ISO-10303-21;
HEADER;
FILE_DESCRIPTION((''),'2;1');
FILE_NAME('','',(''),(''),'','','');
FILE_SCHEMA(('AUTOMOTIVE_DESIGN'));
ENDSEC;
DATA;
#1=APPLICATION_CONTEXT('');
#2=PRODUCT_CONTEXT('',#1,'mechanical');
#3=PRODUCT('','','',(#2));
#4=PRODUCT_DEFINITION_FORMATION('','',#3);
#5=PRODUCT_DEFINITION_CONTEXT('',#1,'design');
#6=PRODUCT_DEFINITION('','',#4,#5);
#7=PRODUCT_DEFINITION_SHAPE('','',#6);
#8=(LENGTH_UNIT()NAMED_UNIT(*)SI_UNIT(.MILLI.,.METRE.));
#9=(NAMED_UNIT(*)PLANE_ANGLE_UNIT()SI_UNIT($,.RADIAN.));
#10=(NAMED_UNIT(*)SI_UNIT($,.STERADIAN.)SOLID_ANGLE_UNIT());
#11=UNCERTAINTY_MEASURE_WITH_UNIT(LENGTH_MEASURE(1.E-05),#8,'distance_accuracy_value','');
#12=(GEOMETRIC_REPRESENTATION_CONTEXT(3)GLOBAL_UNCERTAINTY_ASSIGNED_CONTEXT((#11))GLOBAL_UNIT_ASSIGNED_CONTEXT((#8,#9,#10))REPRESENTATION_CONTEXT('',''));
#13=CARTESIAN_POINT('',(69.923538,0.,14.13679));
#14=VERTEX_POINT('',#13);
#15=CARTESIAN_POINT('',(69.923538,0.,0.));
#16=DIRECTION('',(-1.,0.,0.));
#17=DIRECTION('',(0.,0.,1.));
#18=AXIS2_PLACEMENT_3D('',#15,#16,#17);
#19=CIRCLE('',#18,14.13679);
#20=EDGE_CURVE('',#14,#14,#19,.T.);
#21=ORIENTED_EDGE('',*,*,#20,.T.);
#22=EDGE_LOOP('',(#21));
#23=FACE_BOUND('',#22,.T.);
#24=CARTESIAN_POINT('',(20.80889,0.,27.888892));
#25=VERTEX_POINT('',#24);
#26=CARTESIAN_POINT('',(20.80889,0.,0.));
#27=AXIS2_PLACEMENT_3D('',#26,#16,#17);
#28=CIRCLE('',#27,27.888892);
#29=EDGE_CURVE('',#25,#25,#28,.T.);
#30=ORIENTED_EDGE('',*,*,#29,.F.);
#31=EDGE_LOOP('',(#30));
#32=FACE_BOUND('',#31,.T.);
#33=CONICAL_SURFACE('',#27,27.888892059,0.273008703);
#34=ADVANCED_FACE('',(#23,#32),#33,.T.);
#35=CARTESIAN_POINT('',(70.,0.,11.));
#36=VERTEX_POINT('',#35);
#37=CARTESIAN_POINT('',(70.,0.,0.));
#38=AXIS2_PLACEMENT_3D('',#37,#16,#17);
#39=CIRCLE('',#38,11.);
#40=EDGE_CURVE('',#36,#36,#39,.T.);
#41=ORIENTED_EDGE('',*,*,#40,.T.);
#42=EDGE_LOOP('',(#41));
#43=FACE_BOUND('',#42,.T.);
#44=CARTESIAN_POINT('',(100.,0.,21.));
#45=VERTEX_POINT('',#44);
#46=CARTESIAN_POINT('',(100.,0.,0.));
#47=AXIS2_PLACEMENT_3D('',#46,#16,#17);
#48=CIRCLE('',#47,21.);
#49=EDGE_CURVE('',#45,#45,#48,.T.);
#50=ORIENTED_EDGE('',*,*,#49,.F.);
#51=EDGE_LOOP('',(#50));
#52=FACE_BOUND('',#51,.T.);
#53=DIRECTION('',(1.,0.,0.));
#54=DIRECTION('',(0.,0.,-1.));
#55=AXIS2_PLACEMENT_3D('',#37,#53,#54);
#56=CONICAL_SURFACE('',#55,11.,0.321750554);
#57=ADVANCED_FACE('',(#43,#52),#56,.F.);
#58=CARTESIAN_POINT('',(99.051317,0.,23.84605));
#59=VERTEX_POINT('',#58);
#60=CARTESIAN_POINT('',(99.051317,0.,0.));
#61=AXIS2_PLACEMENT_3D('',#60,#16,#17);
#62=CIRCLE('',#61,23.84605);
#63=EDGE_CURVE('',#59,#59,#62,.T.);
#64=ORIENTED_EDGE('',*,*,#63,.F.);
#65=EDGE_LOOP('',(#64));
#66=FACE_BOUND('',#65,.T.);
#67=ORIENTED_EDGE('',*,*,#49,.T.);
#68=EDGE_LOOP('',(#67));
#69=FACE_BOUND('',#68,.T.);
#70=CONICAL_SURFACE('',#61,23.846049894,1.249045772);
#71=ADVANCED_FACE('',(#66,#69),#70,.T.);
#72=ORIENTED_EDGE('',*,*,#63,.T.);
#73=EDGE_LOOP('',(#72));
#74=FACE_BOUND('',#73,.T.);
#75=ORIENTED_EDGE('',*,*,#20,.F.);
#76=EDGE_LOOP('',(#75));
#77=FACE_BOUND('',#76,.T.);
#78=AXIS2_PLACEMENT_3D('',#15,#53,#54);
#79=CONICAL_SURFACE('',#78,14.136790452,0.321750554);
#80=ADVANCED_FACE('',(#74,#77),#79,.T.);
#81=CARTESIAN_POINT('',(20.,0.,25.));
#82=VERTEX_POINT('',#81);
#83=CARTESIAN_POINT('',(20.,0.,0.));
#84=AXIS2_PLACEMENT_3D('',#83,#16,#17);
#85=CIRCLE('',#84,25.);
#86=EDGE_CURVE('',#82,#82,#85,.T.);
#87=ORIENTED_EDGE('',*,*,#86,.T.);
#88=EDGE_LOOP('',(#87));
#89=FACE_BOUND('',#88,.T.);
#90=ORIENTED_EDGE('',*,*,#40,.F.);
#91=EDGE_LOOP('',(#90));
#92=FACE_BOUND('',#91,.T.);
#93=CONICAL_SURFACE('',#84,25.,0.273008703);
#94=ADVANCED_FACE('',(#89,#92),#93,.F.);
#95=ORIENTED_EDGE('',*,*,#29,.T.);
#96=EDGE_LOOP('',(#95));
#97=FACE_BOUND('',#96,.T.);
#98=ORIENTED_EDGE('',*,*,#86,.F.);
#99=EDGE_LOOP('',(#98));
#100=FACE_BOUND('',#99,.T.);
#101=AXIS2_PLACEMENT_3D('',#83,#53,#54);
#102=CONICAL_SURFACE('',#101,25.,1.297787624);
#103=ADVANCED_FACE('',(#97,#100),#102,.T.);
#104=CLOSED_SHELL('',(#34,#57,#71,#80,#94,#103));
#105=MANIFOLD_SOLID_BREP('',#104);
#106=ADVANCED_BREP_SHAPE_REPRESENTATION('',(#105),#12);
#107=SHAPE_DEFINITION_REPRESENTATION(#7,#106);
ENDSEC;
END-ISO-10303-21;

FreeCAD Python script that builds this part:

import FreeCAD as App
import Part
import Sketcher

V = App.Vector


def add_polygon(sketch, points):
    """Adds a closed chain of lines whose ends are joined by coincident constraints."""
    first, n = sketch.GeometryCount, len(points)
    for a, b in zip(points, points[1:] + points[:1]):
        sketch.addGeometry(Part.LineSegment(App.Vector(*a, 0), App.Vector(*b, 0)), False)
    for i in range(n):
        sketch.addConstraint(Sketcher.Constraint("Coincident", first + i, 2, first + (i + 1) % n, 1))

doc = App.newDocument("Part")
body = doc.addObject("PartDesign::Body", "Body")

# Sketch on XY plane
sketch1 = body.newObject("Sketcher::SketchObject", "Sketch")
sketch1.AttachmentSupport = (doc.getObject("XY_Plane"), [""])
sketch1.MapMode = "FlatFace"
add_polygon(sketch1, [(20, 25), (70, 11), (100, 21), (99.1, 23.8), (69.9, 14.1), (20.8, 27.9)])  # lines 0-5
sketch1.addConstraint([
    Sketcher.Constraint("Perpendicular", 1, 2),
    Sketcher.Constraint("Perpendicular", 2, 3),
    Sketcher.Constraint("Parallel", 0, 4),
    Sketcher.Constraint("Perpendicular", 4, 5),
    Sketcher.Constraint("Equal", 2, 5),
    Sketcher.Constraint("Distance", 2, 3.0),
    Sketcher.Constraint("DistanceX", -1, 1, 0, 2, 70.0),
    Sketcher.Constraint("DistanceY", -1, 1, 0, 2, 11.0),
    Sketcher.Constraint("DistanceX", -1, 1, 1, 2, 100.0),
    Sketcher.Constraint("DistanceY", -1, 1, 1, 2, 21.0),
    Sketcher.Constraint("DistanceX", -1, 1, 5, 2, 20.0),
    Sketcher.Constraint("DistanceY", -1, 1, 5, 2, 25.0),
])
revolution = body.newObject("PartDesign::Revolution", "Revolution")
revolution.Profile = sketch1
revolution.ReferenceAxis = (sketch1, ["H_Axis"])
revolution.Angle = 360

doc.recompute()
